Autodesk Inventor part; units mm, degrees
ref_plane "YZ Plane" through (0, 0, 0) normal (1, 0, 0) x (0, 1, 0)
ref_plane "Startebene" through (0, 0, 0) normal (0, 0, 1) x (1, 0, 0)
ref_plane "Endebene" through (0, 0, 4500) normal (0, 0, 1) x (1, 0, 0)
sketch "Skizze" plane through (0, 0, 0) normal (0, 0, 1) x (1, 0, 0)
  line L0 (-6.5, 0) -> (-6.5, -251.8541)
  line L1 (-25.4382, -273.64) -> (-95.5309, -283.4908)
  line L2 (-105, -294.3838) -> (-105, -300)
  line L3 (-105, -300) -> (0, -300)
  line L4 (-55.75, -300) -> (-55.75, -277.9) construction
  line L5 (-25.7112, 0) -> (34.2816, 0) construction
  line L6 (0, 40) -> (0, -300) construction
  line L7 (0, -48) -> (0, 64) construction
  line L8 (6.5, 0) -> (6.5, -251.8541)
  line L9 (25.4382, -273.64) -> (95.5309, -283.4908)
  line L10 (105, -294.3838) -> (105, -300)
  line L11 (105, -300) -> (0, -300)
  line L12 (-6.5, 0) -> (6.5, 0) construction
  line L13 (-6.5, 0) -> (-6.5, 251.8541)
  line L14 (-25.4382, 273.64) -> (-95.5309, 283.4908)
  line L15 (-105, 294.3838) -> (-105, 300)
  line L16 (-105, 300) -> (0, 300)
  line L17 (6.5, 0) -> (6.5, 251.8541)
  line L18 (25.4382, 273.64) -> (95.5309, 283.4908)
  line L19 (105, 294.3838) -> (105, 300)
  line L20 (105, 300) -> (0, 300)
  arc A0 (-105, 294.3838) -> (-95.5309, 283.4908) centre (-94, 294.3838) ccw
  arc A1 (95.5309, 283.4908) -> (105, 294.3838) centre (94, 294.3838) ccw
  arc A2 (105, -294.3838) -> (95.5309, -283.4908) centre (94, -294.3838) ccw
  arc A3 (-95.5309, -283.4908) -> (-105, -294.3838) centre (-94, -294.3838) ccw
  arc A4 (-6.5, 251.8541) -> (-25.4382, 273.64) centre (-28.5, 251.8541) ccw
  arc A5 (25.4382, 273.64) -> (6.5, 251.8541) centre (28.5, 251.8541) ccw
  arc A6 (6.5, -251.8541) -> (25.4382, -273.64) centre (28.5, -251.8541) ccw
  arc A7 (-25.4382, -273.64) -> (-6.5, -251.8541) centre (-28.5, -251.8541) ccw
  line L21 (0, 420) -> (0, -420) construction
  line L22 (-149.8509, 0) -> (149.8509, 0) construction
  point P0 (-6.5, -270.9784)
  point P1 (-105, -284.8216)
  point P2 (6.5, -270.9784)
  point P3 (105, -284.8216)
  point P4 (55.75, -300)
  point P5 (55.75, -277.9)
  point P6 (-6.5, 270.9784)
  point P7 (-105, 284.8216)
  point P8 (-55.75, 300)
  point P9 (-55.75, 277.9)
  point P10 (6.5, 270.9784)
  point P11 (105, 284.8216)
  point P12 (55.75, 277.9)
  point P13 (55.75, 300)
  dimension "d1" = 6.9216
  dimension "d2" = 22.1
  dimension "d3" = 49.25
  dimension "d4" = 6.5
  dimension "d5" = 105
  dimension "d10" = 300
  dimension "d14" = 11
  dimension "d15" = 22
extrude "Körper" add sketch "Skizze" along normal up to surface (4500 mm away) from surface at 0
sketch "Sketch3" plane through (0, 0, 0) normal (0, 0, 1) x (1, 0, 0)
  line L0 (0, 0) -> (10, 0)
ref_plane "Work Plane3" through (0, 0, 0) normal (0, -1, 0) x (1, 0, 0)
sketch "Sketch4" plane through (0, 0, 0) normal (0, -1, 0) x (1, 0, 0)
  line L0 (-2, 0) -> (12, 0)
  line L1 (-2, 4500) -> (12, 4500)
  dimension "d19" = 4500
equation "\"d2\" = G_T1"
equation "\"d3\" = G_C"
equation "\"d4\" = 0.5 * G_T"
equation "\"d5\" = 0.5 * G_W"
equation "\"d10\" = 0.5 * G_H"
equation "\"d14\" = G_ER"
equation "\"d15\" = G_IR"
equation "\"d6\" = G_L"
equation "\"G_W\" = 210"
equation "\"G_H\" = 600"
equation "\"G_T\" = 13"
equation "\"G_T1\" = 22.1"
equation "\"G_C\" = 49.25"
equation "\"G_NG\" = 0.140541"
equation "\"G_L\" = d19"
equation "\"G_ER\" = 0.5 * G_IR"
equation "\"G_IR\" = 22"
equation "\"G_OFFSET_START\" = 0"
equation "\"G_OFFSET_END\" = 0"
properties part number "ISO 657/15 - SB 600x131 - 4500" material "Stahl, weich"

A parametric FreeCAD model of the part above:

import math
import FreeCAD as App
import Part
import Sketcher

V = App.Vector
Q = App.Units.Quantity

doc = App.newDocument("Part")
body = doc.addObject("PartDesign::Body", "Body")

# Sketch on XY plane
sketch1 = doc.addObject("Sketcher::SketchObject", "Sketch")
body.addObject(sketch1)
sketch1.AttachmentSupport = (doc.XY_Plane, [""])
sketch1.MapMode = "FlatFace"
sketch1.addGeometry(Part.LineSegment(V(-6.5, 251.8541, 0), V(-6.5, -251.8541, 0)), False)
sketch1.addGeometry(Part.ArcOfCircle(Part.Circle(V(-28.5, -251.8541, 0), V(0, 0, 1), 22.000001), math.radians(-82.000022), math.radians(0)), False)
sketch1.addGeometry(Part.LineSegment(V(-25.4382, -273.64, 0), V(-95.5309, -283.4908, 0)), False)
sketch1.addGeometry(Part.ArcOfCircle(Part.Circle(V(-94, -294.3838, 0), V(0, 0, 1), 11.00005), math.radians(97.999942), math.radians(180)), False)
sketch1.addGeometry(Part.LineSegment(V(-105, -294.3838, 0), V(-105, -300, 0)), False)
sketch1.addGeometry(Part.LineSegment(V(-105, -300, 0), V(105, -300, 0)), False)
sketch1.addGeometry(Part.LineSegment(V(105, -300, 0), V(105, -294.3838, 0)), False)
sketch1.addGeometry(Part.ArcOfCircle(Part.Circle(V(94, -294.3838, 0), V(0, 0, 1), 11), math.radians(0), math.radians(82.000058)), False)
sketch1.addGeometry(Part.LineSegment(V(95.5309, -283.4908, 0), V(25.4382, -273.64, 0)), False)
sketch1.addGeometry(Part.ArcOfCircle(Part.Circle(V(28.5, -251.8541, 0), V(0, 0, 1), 22), math.radians(180), math.radians(262.000022)), False)
sketch1.addGeometry(Part.LineSegment(V(6.5, -251.8541, 0), V(6.5, 251.8541, 0)), False)
sketch1.addGeometry(Part.ArcOfCircle(Part.Circle(V(28.5, 251.8541, 0), V(0, 0, 1), 22.000001), math.radians(97.999978), math.radians(180)), False)
sketch1.addGeometry(Part.LineSegment(V(25.4382, 273.64, 0), V(95.5309, 283.4908, 0)), False)
sketch1.addGeometry(Part.ArcOfCircle(Part.Circle(V(94, 294.3838, 0), V(0, 0, 1), 11.00005), math.radians(-82.000058), math.radians(0)), False)
sketch1.addGeometry(Part.LineSegment(V(105, 294.3838, 0), V(105, 300, 0)), False)
sketch1.addGeometry(Part.LineSegment(V(105, 300, 0), V(-105, 300, 0)), False)
sketch1.addGeometry(Part.LineSegment(V(-105, 300, 0), V(-105, 294.3838, 0)), False)
sketch1.addGeometry(Part.ArcOfCircle(Part.Circle(V(-94, 294.3838, 0), V(0, 0, 1), 11), math.radians(180), math.radians(262.000058)), False)
sketch1.addGeometry(Part.LineSegment(V(-95.5309, 283.4908, 0), V(-25.4382, 273.64, 0)), False)
sketch1.addGeometry(Part.ArcOfCircle(Part.Circle(V(-28.5, 251.8541, 0), V(0, 0, 1), 22), math.radians(0), math.radians(82.000022)), False)
sketch1.addConstraint(Sketcher.Constraint("Tangent", 0, 2, 1, 2))
sketch1.addConstraint(Sketcher.Constraint("Tangent", 1, 1, 2, 1))
sketch1.addConstraint(Sketcher.Constraint("Tangent", 2, 2, 3, 1))
sketch1.addConstraint(Sketcher.Constraint("Tangent", 3, 2, 4, 1))
sketch1.addConstraint(Sketcher.Constraint("Coincident", 4, 2, 5, 1))
sketch1.addConstraint(Sketcher.Constraint("Coincident", 5, 2, 6, 1))
sketch1.addConstraint(Sketcher.Constraint("Tangent", 6, 2, 7, 1))
sketch1.addConstraint(Sketcher.Constraint("Tangent", 7, 2, 8, 1))
sketch1.addConstraint(Sketcher.Constraint("Tangent", 8, 2, 9, 2))
sketch1.addConstraint(Sketcher.Constraint("Tangent", 9, 1, 10, 1))
sketch1.addConstraint(Sketcher.Constraint("Tangent", 10, 2, 11, 2))
sketch1.addConstraint(Sketcher.Constraint("Tangent", 11, 1, 12, 1))
sketch1.addConstraint(Sketcher.Constraint("Tangent", 12, 2, 13, 1))
sketch1.addConstraint(Sketcher.Constraint("Tangent", 13, 2, 14, 1))
sketch1.addConstraint(Sketcher.Constraint("Coincident", 14, 2, 15, 1))
sketch1.addConstraint(Sketcher.Constraint("Coincident", 15, 2, 16, 1))
sketch1.addConstraint(Sketcher.Constraint("Tangent", 16, 2, 17, 1))
sketch1.addConstraint(Sketcher.Constraint("Tangent", 17, 2, 18, 1))
sketch1.addConstraint(Sketcher.Constraint("Tangent", 18, 2, 19, 2))
sketch1.addConstraint(Sketcher.Constraint("Tangent", 19, 1, 0, 1))
sketch1.addConstraint(Sketcher.Constraint("Vertical", 0))
sketch1.addConstraint(Sketcher.Constraint("Vertical", 4))
sketch1.addConstraint(Sketcher.Constraint("Horizontal", 5))
sketch1.addConstraint(Sketcher.Constraint("Vertical", 6))
sketch1.addConstraint(Sketcher.Constraint("Vertical", 10))
sketch1.addConstraint(Sketcher.Constraint("Vertical", 14))
sketch1.addConstraint(Sketcher.Constraint("Horizontal", 15))
sketch1.addConstraint(Sketcher.Constraint("Vertical", 16))
sketch1.addConstraint(Sketcher.Constraint("Equal", 3, 7))
sketch1.addConstraint(Sketcher.Constraint("Equal", 1, 9))
sketch1.addConstraint(Sketcher.Constraint("Equal", 9, 11))
sketch1.addConstraint(Sketcher.Constraint("Equal", 7, 13))
sketch1.addConstraint(Sketcher.Constraint("Equal", 13, 17))
sketch1.addConstraint(Sketcher.Constraint("Equal", 11, 19))
sketch1.addConstraint(Sketcher.Constraint("Symmetric", 1, 3, 11, 3, -1, 1))
sketch1.addConstraint(Sketcher.Constraint("Symmetric", 3, 3, 13, 3, -1, 1))
sketch1.addConstraint(Sketcher.Constraint("Symmetric", 7, 3, 17, 3, -1, 1))
sketch1.addConstraint(Sketcher.Constraint("Symmetric", 3, 3, 7, 3, -2))
sketch1.addConstraint(Sketcher.Constraint("Parallel", 8, 18))
sketch1.addConstraint(Sketcher.Constraint("Horizontal", 1, 3, 9, 3))
sketch1.addConstraint(Sketcher.Constraint("Equal", 6, 14))
sketch1.addConstraint(Sketcher.Constraint("Radius", 1, Q("22 mm")))
sketch1.addConstraint(Sketcher.Constraint("Radius", 3, Q("11 mm")))
sketch1.addConstraint(Sketcher.Constraint("DistanceX", 3, 2, -1, 1, Q("105 mm")))
sketch1.addConstraint(Sketcher.Constraint("DistanceY", 4, 2, -1, 1, Q("300 mm")))
sketch1.addConstraint(Sketcher.Constraint("DistanceX", 0, 2, -1, 1, Q("6.5 mm")))
sketch1.addConstraint(Sketcher.Constraint("Angle", 2, Q("-172 deg")))
sketch1.addConstraint(Sketcher.Constraint("DistanceY", 1, 1, -1, 1, Q("273.64 mm")))
pad1 = doc.addObject("PartDesign::Pad", "Pad")
body.addObject(pad1)
pad1.Profile = sketch1
pad1.Length = 4500

doc.recompute()
